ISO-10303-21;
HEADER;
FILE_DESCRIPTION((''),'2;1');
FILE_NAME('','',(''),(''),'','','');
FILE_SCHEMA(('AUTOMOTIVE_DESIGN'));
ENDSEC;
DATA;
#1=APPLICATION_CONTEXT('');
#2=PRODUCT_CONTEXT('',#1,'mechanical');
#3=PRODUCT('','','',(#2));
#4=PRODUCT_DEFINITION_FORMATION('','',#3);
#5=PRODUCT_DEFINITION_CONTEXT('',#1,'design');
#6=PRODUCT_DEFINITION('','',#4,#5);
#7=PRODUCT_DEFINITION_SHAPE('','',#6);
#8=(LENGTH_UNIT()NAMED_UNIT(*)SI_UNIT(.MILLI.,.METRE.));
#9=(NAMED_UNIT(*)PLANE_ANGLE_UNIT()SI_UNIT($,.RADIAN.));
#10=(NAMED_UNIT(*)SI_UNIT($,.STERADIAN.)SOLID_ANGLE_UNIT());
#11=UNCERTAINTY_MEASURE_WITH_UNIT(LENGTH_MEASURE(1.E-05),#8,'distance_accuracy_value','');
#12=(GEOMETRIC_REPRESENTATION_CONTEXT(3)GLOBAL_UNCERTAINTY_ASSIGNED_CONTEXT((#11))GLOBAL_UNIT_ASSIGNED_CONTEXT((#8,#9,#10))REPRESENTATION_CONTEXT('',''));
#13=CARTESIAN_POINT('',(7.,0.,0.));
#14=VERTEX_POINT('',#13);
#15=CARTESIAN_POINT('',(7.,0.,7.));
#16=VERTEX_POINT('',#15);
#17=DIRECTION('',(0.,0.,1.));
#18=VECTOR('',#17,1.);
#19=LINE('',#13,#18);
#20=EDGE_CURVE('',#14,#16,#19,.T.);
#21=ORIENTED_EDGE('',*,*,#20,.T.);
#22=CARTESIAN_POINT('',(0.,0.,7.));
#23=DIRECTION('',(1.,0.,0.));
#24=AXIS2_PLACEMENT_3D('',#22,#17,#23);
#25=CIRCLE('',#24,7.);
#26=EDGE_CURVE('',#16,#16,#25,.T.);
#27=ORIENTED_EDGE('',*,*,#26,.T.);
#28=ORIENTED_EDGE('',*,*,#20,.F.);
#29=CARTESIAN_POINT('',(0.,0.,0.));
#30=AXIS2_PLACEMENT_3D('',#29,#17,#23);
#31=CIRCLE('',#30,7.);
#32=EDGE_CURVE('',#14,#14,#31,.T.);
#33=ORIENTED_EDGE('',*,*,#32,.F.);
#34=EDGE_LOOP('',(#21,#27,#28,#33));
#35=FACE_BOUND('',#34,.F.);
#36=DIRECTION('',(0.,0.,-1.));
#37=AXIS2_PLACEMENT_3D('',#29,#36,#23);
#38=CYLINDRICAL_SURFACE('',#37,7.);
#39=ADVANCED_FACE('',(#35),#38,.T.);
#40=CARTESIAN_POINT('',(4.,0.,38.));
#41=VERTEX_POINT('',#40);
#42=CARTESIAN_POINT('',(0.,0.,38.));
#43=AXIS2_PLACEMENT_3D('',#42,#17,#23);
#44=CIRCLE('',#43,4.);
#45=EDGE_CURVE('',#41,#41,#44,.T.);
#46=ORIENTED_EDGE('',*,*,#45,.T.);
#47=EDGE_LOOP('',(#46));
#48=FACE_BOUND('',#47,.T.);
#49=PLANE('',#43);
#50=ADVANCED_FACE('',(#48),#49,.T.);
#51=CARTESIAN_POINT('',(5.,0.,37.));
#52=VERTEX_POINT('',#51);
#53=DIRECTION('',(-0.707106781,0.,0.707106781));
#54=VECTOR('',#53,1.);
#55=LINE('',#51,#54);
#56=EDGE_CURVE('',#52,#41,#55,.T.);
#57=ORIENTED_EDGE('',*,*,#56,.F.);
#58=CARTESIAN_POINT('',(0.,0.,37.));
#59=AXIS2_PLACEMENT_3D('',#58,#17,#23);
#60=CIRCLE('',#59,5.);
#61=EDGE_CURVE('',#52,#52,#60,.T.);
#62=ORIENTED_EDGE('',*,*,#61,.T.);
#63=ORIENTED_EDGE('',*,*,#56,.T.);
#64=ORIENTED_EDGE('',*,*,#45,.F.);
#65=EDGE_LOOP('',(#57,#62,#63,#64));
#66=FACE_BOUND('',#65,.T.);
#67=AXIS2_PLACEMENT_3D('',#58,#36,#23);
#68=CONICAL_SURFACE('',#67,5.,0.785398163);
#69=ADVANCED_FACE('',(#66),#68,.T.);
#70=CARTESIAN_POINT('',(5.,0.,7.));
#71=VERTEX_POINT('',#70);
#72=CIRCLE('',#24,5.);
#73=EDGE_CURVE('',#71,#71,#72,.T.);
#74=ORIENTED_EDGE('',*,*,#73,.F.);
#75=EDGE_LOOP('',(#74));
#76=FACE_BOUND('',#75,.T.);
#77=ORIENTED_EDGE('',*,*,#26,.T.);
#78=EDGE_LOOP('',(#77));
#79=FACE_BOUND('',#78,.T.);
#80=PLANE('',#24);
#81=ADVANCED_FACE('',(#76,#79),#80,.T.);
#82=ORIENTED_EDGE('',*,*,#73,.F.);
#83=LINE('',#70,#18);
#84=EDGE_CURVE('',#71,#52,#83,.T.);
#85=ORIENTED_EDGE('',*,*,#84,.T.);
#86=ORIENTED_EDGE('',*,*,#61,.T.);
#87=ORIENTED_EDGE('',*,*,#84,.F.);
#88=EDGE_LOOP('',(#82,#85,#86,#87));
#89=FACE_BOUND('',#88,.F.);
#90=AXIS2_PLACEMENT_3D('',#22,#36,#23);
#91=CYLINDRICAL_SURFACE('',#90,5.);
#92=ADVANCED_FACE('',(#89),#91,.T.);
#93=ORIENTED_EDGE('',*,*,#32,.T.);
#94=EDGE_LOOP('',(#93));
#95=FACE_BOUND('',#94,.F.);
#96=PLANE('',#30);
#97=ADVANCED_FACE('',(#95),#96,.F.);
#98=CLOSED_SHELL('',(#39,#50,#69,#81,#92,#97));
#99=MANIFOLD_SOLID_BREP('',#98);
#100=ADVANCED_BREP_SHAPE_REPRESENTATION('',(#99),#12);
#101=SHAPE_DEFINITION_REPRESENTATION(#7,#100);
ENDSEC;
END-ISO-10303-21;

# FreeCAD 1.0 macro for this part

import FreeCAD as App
import Part
import Sketcher

V = App.Vector


def edges_at(feature, points):
    """Names of the edges that pass closest to the given points."""
    edges = feature.Shape.Edges
    near = lambda p: min(range(len(edges)), key=lambda i: edges[i].distToShape(Part.Vertex(*p))[0])
    return sorted({f"Edge{near(p) + 1}" for p in points})

doc = App.newDocument("Part")
body = doc.addObject("PartDesign::Body", "Body")

sketch1 = doc.addObject("Sketcher::SketchObject", "Sketch")
body.addObject(sketch1)
sketch1.AttachmentSupport = (doc.XY_Plane, [""])
sketch1.MapMode = "FlatFace"
sketch1.addGeometry(Part.Circle(V(0, 0, 0), V(0, 0, 1), 7), False)
sketch1.addConstraint([
    Sketcher.Constraint("Coincident", 0, 3, -1, 1),
    Sketcher.Constraint("Diameter", 0, 14.0),
])
pad1 = doc.addObject("PartDesign::Pad", "Pad")
body.addObject(pad1)
pad1.Profile = sketch1
pad1.Length = 7

sketch2 = doc.addObject("Sketcher::SketchObject", "Sketch001")
body.addObject(sketch2)
sketch2.AttachmentSupport = (doc.XY_Plane, [""])
sketch2.MapMode = "FlatFace"
sketch2.AttachmentOffset = App.Placement(V(0, 0, 7), App.Rotation())
sketch2.addGeometry(Part.Circle(V(0, 0, 0), V(0, 0, 1), 5), False)
sketch2.addConstraint([
    Sketcher.Constraint("Coincident", 0, 3, -1, 1),
    Sketcher.Constraint("Diameter", 0, 10.0),
])
pad2 = doc.addObject("PartDesign::Pad", "Pad001")
body.addObject(pad2)
pad2.Profile = sketch2
pad2.Length = 31
doc.recompute()

chamfer = doc.addObject("PartDesign::Chamfer", "Chamfer")
body.addObject(chamfer)
chamfer.Base = (pad2, edges_at(pad2, [(-5, 0, 38)]))
chamfer.Size = 1

doc.recompute()
